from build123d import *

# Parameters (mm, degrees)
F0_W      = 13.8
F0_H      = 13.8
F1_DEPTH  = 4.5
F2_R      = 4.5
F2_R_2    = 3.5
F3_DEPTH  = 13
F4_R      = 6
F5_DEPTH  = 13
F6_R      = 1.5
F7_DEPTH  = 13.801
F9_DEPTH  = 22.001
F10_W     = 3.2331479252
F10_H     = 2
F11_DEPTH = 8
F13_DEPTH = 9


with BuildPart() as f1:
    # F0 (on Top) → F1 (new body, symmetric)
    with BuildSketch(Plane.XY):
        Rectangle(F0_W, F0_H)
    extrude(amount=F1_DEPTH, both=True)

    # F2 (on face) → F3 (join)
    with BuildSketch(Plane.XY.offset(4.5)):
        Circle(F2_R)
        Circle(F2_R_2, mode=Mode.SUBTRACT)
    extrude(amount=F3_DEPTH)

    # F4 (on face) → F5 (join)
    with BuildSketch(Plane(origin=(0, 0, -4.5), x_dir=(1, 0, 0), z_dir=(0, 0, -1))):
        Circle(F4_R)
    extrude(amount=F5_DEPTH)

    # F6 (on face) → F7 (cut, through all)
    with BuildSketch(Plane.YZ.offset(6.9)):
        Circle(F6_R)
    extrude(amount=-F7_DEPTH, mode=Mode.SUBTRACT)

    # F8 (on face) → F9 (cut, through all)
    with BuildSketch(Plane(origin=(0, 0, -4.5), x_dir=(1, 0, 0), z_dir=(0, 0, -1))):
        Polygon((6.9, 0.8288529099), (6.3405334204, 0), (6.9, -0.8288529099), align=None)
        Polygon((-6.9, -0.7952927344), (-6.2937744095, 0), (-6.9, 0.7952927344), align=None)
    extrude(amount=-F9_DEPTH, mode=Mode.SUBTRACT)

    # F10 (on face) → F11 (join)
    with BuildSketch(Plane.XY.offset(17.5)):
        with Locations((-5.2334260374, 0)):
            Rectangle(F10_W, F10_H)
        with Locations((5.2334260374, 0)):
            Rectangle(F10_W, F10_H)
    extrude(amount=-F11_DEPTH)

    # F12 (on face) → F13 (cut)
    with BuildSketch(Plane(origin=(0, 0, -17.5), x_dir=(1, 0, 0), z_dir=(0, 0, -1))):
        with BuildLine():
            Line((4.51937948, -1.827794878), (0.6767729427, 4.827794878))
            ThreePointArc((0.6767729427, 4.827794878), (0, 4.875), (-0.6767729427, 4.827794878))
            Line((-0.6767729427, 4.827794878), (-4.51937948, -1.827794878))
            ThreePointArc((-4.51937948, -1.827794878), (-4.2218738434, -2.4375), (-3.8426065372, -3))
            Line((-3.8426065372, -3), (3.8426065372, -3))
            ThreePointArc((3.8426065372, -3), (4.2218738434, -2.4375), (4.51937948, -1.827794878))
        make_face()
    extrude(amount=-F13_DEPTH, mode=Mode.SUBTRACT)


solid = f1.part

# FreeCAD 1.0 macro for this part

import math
import FreeCAD as App
import Part
import Sketcher
from FreeCAD import Vector
Q = App.Units.Quantity


def add_polygon(sketch, points):
    """Adds a closed chain of lines whose ends are joined by coincident constraints."""
    first, n = sketch.GeometryCount, len(points)
    for a, b in zip(points, points[1:] + points[:1]):
        sketch.addGeometry(Part.LineSegment(App.Vector(*a, 0), App.Vector(*b, 0)), False)
    for i in range(n):
        sketch.addConstraint(Sketcher.Constraint("Coincident", first + i, 2, first + (i + 1) % n, 1))

doc = App.newDocument("Part")
body = doc.addObject("PartDesign::Body", "Body")

# Sketch on XY plane
sketch1 = body.newObject("Sketcher::SketchObject", "Sketch")
sketch1.AttachmentSupport = (doc.getObject("XY_Plane"), [""])
sketch1.MapMode = "FlatFace"
add_polygon(sketch1, [(-7, 7), (-7, -7), (7, -7), (7, 7)])  # lines 0-3
sketch1.addConstraint(Sketcher.Constraint("Vertical", 0))
sketch1.addConstraint(Sketcher.Constraint("Horizontal", 1))
sketch1.addConstraint(Sketcher.Constraint("Vertical", 2))
sketch1.addConstraint(Sketcher.Constraint("Horizontal", 3))
sketch1.addConstraint(Sketcher.Constraint("Symmetric", 0, 2, 2, 2, -1, 1))
sketch1.addConstraint(Sketcher.Constraint("Equal", 3, 0))
sketch1.addConstraint(Sketcher.Constraint("DistanceX", 1, 1, 1, 2, Q("13.8 mm")))
pad1 = body.newObject("PartDesign::Pad", "Pad")
pad1.Profile = sketch1
pad1.Length = 9
pad1.Midplane = True

# Sketch on XY plane
sketch2 = body.newObject("Sketcher::SketchObject", "Sketch001")
sketch2.AttachmentSupport = (doc.getObject("XY_Plane"), [""])
sketch2.MapMode = "FlatFace"
sketch2.AttachmentOffset = App.Placement(Vector(0, 0, 4.5), App.Rotation())
sketch2.addGeometry(Part.Circle(Vector(0, 0, 0), Vector(0, 0, 1), 4.5), False)
sketch2.addGeometry(Part.Circle(Vector(0, 0, 0), Vector(0, 0, 1), 3.5), False)
sketch2.addConstraint(Sketcher.Constraint("Coincident", 0, 3, -1, 1))
sketch2.addConstraint(Sketcher.Constraint("Coincident", 1, 3, -1, 1))
sketch2.addConstraint(Sketcher.Constraint("Diameter", 0, Q("9 mm")))
sketch2.addConstraint(Sketcher.Constraint("Diameter", 1, Q("7 mm")))
pad2 = body.newObject("PartDesign::Pad", "Pad001")
pad2.Profile = sketch2
pad2.Length = 13

# Sketch on XY plane
sketch3 = body.newObject("Sketcher::SketchObject", "Sketch002")
sketch3.AttachmentSupport = (doc.getObject("XY_Plane"), [""])
sketch3.MapMode = "FlatFace"
sketch3.AttachmentOffset = App.Placement(Vector(0, 0, -4.5), App.Rotation())
sketch3.addGeometry(Part.Circle(Vector(0, 0, 0), Vector(0, 0, 1), 6), False)
sketch3.addConstraint(Sketcher.Constraint("Coincident", 0, 3, -1, 1))
sketch3.addConstraint(Sketcher.Constraint("Diameter", 0, Q("12 mm")))
pad3 = body.newObject("PartDesign::Pad", "Pad002")
pad3.Profile = sketch3
pad3.Length = 13
pad3.Reversed = True

# Sketch on YZ plane
sketch4 = body.newObject("Sketcher::SketchObject", "Sketch003")
sketch4.AttachmentSupport = (doc.getObject("YZ_Plane"), [""])
sketch4.MapMode = "FlatFace"
sketch4.AttachmentOffset = App.Placement(Vector(0, 0, 6.9), App.Rotation())
sketch4.addGeometry(Part.Circle(Vector(0, 0, 0), Vector(0, 0, 1), 1.5), False)
sketch4.addConstraint(Sketcher.Constraint("Coincident", 0, 3, -1, 1))
sketch4.addConstraint(Sketcher.Constraint("Diameter", 0, Q("3 mm")))
pocket1 = body.newObject("PartDesign::Pocket", "Pocket")
pocket1.Profile = sketch4
pocket1.Type = "ThroughAll"

# Sketch on XY plane
sketch5 = body.newObject("Sketcher::SketchObject", "Sketch004")
sketch5.AttachmentSupport = (doc.getObject("XY_Plane"), [""])
sketch5.MapMode = "FlatFace"
sketch5.AttachmentOffset = App.Placement(Vector(0, 0, -4.5), App.Rotation())
add_polygon(sketch5, [(6.9, -0.8), (6.3, 0), (6.9, 0.8)])  # lines 0-2
add_polygon(sketch5, [(-6.9, 0.8), (-6.3, 0), (-6.9, -0.8)])  # lines 3-5
sketch5.addConstraint(Sketcher.Constraint("Vertical", 2))
sketch5.addConstraint(Sketcher.Constraint("Vertical", 5))
sketch5.addConstraint(Sketcher.Constraint("PointOnObject", 0, 2, -1))
sketch5.addConstraint(Sketcher.Constraint("PointOnObject", 3, 2, -1))
sketch5.addConstraint(Sketcher.Constraint("Equal", 0, 1))
sketch5.addConstraint(Sketcher.Constraint("Equal", 1, 3))
sketch5.addConstraint(Sketcher.Constraint("Equal", 3, 4))
sketch5.addConstraint(Sketcher.Constraint("Distance", 0, Q("1 mm")))
sketch5.addConstraint(Sketcher.Constraint("DistanceX", -1, 1, 1, 2, Q("6.9 mm")))
sketch5.addConstraint(Sketcher.Constraint("DistanceX", 4, 2, -1, 1, Q("6.9 mm")))
sketch5.addConstraint(Sketcher.Constraint("DistanceY", 2, 2, 2, 1, Q("1.657706 mm")))
sketch5.addConstraint(Sketcher.Constraint("DistanceY", 5, 1, 5, 2, Q("1.590585 mm")))
pocket2 = body.newObject("PartDesign::Pocket", "Pocket001")
pocket2.Profile = sketch5
pocket2.Type = "ThroughAll"
pocket2.Reversed = True

# Sketch on XY plane
sketch6 = body.newObject("Sketcher::SketchObject", "Sketch005")
sketch6.AttachmentSupport = (doc.getObject("XY_Plane"), [""])
sketch6.MapMode = "FlatFace"
sketch6.AttachmentOffset = App.Placement(Vector(0, 0, 17.5), App.Rotation())
add_polygon(sketch6, [(-6.8, 1), (-6.8, -1), (-3.6, -1), (-3.6, 1)])  # lines 0-3
add_polygon(sketch6, [(3.6, 1), (3.6, -1), (6.8, -1), (6.8, 1)])  # lines 4-7
sketch6.addConstraint(Sketcher.Constraint("Vertical", 0))
sketch6.addConstraint(Sketcher.Constraint("Horizontal", 1))
sketch6.addConstraint(Sketcher.Constraint("Vertical", 2))
sketch6.addConstraint(Sketcher.Constraint("Horizontal", 3))
sketch6.addConstraint(Sketcher.Constraint("Vertical", 4))
sketch6.addConstraint(Sketcher.Constraint("Horizontal", 5))
sketch6.addConstraint(Sketcher.Constraint("Vertical", 6))
sketch6.addConstraint(Sketcher.Constraint("Horizontal", 7))
sketch6.addConstraint(Sketcher.Constraint("Symmetric", 2, 2, 4, 2, -1, 1))
sketch6.addConstraint(Sketcher.Constraint("Symmetric", 0, 2, 6, 2, -1, 1))
sketch6.addConstraint(Sketcher.Constraint("Horizontal", 1, 2, 4, 2))
sketch6.addConstraint(Sketcher.Constraint("DistanceY", 0, 2, 0, 1, Q("2 mm")))
sketch6.addConstraint(Sketcher.Constraint("DistanceX", 0, 2, 5, 2, Q("13.7 mm")))
sketch6.addConstraint(Sketcher.Constraint("DistanceX", 1, 1, 1, 2, Q("3.233148 mm")))
pad4 = body.newObject("PartDesign::Pad", "Pad003")
pad4.Profile = sketch6
pad4.Length = 8
pad4.Reversed = True

# Sketch on XY plane
sketch7 = body.newObject("Sketcher::SketchObject", "Sketch006")
sketch7.AttachmentSupport = (doc.getObject("XY_Plane"), [""])
sketch7.MapMode = "FlatFace"
sketch7.AttachmentOffset = App.Placement(Vector(0, 0, -17.5), App.Rotation())
sketch7.addGeometry(Part.LineSegment(Vector(4.5, 1.8, 0), Vector(0.7, -4.8, 0)), False)
sketch7.addGeometry(Part.ArcOfCircle(Part.Circle(Vector(0, 0, 0), Vector(0, 0, 1), 4.9), math.radians(-97.98), math.radians(-82.02)), False)
sketch7.addGeometry(Part.LineSegment(Vector(-0.7, -4.8, 0), Vector(-4.5, 1.8, 0)), False)
sketch7.addGeometry(Part.ArcOfCircle(Part.Circle(Vector(0, 0, 0), Vector(0, 0, 1), 4.9), math.radians(142.02), math.radians(157.98)), False)
sketch7.addGeometry(Part.LineSegment(Vector(-3.8, 3, 0), Vector(3.8, 3, 0)), False)
sketch7.addGeometry(Part.ArcOfCircle(Part.Circle(Vector(0, 0, 0), Vector(0, 0, 1), 4.9), math.radians(22.02), math.radians(37.98)), False)
sketch7.addConstraint(Sketcher.Constraint("Coincident", 0, 2, 1, 2))
sketch7.addConstraint(Sketcher.Constraint("Coincident", 1, 1, 2, 1))
sketch7.addConstraint(Sketcher.Constraint("Coincident", 2, 2, 3, 2))
sketch7.addConstraint(Sketcher.Constraint("Coincident", 3, 1, 4, 1))
sketch7.addConstraint(Sketcher.Constraint("Coincident", 4, 2, 5, 2))
sketch7.addConstraint(Sketcher.Constraint("Coincident", 5, 1, 0, 1))
sketch7.addConstraint(Sketcher.Constraint("Horizontal", 4))
sketch7.addConstraint(Sketcher.Constraint("Coincident", 1, 3, -1, 1))
sketch7.addConstraint(Sketcher.Constraint("Coincident", 3, 3, -1, 1))
sketch7.addConstraint(Sketcher.Constraint("Coincident", 5, 3, -1, 1))
sketch7.addConstraint(Sketcher.Constraint("Equal", 1, 3))
sketch7.addConstraint(Sketcher.Constraint("Equal", 3, 5))
sketch7.addConstraint(Sketcher.Constraint("Horizontal", 0, 2, 1, 1))
sketch7.addConstraint(Sketcher.Constraint("Horizontal", 2, 2, 5, 1))
sketch7.addConstraint(Sketcher.Constraint("Angle", 0, Q("-120 deg")))
sketch7.addConstraint(Sketcher.Constraint("DistanceY", -1, 1, 3, 1, Q("3 mm")))
sketch7.addConstraint(Sketcher.Constraint("Radius", 1, Q("4.875 mm")))
sketch7.addConstraint(Sketcher.Constraint("DistanceX", 2, 2, -1, 1, Q("4.519379 mm")))
pocket3 = body.newObject("PartDesign::Pocket", "Pocket002")
pocket3.Profile = sketch7
pocket3.Length = 9
pocket3.Reversed = True

doc.recompute()
